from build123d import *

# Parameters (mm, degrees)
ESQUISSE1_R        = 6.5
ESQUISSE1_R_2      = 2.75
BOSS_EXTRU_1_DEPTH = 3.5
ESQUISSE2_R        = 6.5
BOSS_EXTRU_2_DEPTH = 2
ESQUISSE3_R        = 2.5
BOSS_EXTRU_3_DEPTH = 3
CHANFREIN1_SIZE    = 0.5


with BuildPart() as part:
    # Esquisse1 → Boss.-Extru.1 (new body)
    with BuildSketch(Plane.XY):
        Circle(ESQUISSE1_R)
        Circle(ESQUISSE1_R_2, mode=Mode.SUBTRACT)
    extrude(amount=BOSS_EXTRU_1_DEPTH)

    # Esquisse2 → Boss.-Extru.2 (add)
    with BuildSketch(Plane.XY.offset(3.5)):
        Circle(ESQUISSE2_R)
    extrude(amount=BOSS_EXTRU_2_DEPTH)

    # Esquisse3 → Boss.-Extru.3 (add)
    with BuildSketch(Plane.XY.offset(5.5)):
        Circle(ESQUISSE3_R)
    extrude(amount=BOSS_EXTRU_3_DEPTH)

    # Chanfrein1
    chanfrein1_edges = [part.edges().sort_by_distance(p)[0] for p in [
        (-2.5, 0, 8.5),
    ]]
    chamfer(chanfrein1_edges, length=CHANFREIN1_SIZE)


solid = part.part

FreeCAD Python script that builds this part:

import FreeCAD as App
import Part
import Sketcher
Q = App.Units.Quantity


def edges_at(feature, points):
    """Names of the edges that pass closest to the given points."""
    edges = feature.Shape.Edges
    near = lambda p: min(range(len(edges)), key=lambda i: edges[i].distToShape(Part.Vertex(*p))[0])
    return sorted({f"Edge{near(p) + 1}" for p in points})

doc = App.newDocument("Part")
params = doc.addObject("Spreadsheet::Sheet", "Params")
for row, (alias, value) in enumerate([
    ("sketch1_diameter", "13 mm"),
    ("sketch1_diameter2", "5.5 mm"),
    ("pad1_length", "3.5 mm"),
    ("sketch2_diameter", "13 mm"),
    ("pad2_length", "2 mm"),
    ("sketch3_diameter", "5 mm"),
    ("pad3_length", "3 mm"),
    ("chamfer_size", "0.5 mm"),
], start=1):
    params.set(f"A{row}", alias)
    params.set(f"B{row}", "=" + value)
    params.setAlias(f"B{row}", alias)

body = doc.addObject("PartDesign::Body", "Body")

# Sketch on XY plane
sketch1 = doc.addObject("Sketcher::SketchObject", "Sketch")
body.addObject(sketch1)
sketch1.AttachmentSupport = (doc.XY_Plane, [""])
sketch1.MapMode = "FlatFace"
sketch1.addGeometry(Part.Circle(App.Vector(0, 0, 0), App.Vector(0, 0, 1), 6.5), False)
sketch1.addGeometry(Part.Circle(App.Vector(0, 0, 0), App.Vector(0, 0, 1), 2.8), False)
sketch1.addConstraint(Sketcher.Constraint("Coincident", 0, 3, -1, 1))
sketch1.addConstraint(Sketcher.Constraint("Coincident", 1, 3, -1, 1))
sketch1.addConstraint(Sketcher.Constraint("Diameter", 0, Q("13 mm")))
sketch1.addConstraint(Sketcher.Constraint("Diameter", 1, Q("5.5 mm")))
sketch1.setExpression("Constraints[2]", "Params.sketch1_diameter")
sketch1.setExpression("Constraints[3]", "Params.sketch1_diameter2")
pad1 = doc.addObject("PartDesign::Pad", "Pad")
body.addObject(pad1)
pad1.Profile = sketch1
pad1.setExpression("Length", "Params.pad1_length")

# Sketch on XY plane
sketch2 = doc.addObject("Sketcher::SketchObject", "Sketch001")
body.addObject(sketch2)
sketch2.AttachmentSupport = (doc.XY_Plane, [""])
sketch2.MapMode = "FlatFace"
sketch2.AttachmentOffset = App.Placement(App.Vector(0, 0, 3.5), App.Rotation())
sketch2.addGeometry(Part.Circle(App.Vector(0, 0, 0), App.Vector(0, 0, 1), 6), False)
sketch2.addConstraint(Sketcher.Constraint("Coincident", 0, 3, -1, 1))
sketch2.addConstraint(Sketcher.Constraint("Diameter", 0, Q("13 mm")))
sketch2.setExpression("Constraints[1]", "Params.sketch2_diameter")
pad2 = doc.addObject("PartDesign::Pad", "Pad001")
body.addObject(pad2)
pad2.Profile = sketch2
pad2.setExpression("Length", "Params.pad2_length")

# Sketch on XY plane
sketch3 = doc.addObject("Sketcher::SketchObject", "Sketch002")
body.addObject(sketch3)
sketch3.AttachmentSupport = (doc.XY_Plane, [""])
sketch3.MapMode = "FlatFace"
sketch3.AttachmentOffset = App.Placement(App.Vector(0, 0, 5.5), App.Rotation())
sketch3.addGeometry(Part.Circle(App.Vector(0, 0, 0), App.Vector(0, 0, 1), 2.5), False)
sketch3.addConstraint(Sketcher.Constraint("Coincident", 0, 3, -1, 1))
sketch3.addConstraint(Sketcher.Constraint("Diameter", 0, Q("5 mm")))
sketch3.setExpression("Constraints[1]", "Params.sketch3_diameter")
pad3 = doc.addObject("PartDesign::Pad", "Pad002")
body.addObject(pad3)
pad3.Profile = sketch3
pad3.setExpression("Length", "Params.pad3_length")
doc.recompute()

chamfer = doc.addObject("PartDesign::Chamfer", "Chamfer")
body.addObject(chamfer)
chamfer.Base = (pad3, edges_at(pad3, [(-2.5, 0, 8.5)]))
chamfer.setExpression("Size", "Params.chamfer_size")

doc.recompute()
